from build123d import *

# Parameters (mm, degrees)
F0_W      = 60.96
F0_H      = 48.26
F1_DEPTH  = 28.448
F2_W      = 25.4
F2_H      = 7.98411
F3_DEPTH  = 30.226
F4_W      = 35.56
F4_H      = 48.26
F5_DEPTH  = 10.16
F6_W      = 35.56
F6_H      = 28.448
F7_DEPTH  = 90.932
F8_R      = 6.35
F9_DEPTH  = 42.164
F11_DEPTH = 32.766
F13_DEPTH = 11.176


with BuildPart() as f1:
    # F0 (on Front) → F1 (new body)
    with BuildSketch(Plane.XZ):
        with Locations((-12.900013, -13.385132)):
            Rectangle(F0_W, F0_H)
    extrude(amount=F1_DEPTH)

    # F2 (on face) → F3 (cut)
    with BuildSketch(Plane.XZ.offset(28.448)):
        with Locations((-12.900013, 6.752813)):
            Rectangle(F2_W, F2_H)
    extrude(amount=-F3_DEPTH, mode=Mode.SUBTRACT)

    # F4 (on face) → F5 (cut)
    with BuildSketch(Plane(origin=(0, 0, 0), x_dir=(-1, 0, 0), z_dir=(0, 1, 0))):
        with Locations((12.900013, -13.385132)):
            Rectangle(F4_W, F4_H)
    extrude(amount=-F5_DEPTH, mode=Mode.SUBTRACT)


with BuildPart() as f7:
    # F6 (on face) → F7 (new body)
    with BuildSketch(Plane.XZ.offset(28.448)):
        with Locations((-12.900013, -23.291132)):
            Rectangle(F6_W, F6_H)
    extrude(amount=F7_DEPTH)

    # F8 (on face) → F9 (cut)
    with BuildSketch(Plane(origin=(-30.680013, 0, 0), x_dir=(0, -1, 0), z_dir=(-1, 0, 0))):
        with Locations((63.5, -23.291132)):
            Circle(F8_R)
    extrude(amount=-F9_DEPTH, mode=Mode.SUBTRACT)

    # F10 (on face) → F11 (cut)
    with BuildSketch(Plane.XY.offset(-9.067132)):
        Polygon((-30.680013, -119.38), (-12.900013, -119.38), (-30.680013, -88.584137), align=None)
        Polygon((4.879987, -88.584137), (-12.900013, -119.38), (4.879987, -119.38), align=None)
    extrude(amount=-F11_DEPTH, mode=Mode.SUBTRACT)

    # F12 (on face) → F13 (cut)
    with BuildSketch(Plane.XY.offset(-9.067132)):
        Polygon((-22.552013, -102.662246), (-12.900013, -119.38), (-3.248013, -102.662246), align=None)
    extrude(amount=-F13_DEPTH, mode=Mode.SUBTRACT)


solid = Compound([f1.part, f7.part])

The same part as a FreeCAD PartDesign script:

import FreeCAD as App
import Part
import Sketcher
from FreeCAD import Vector
Q = App.Units.Quantity

doc = App.newDocument("Part")
body = doc.addObject("PartDesign::Body", "Body")

# Sketch on XZ plane
sketch1 = body.newObject("Sketcher::SketchObject", "Sketch")
sketch1.AttachmentSupport = (doc.getObject("XZ_Plane"), [""])
sketch1.MapMode = "FlatFace"
sketch1.addGeometry(Part.LineSegment(Vector(-43.380013, 10.744868, 0), Vector(-43.380013, -37.515132, 0)), False)
sketch1.addGeometry(Part.LineSegment(Vector(-43.380013, -37.515132, 0), Vector(17.579987, -37.515132, 0)), False)
sketch1.addGeometry(Part.LineSegment(Vector(17.579987, -37.515132, 0), Vector(17.579987, 10.744868, 0)), False)
sketch1.addGeometry(Part.LineSegment(Vector(17.579987, 10.744868, 0), Vector(-43.380013, 10.744868, 0)), False)
sketch1.addConstraint(Sketcher.Constraint("Coincident", 0, 2, 1, 1))
sketch1.addConstraint(Sketcher.Constraint("Coincident", 1, 2, 2, 1))
sketch1.addConstraint(Sketcher.Constraint("Coincident", 2, 2, 3, 1))
sketch1.addConstraint(Sketcher.Constraint("Coincident", 3, 2, 0, 1))
sketch1.addConstraint(Sketcher.Constraint("Vertical", 0))
sketch1.addConstraint(Sketcher.Constraint("Horizontal", 1))
sketch1.addConstraint(Sketcher.Constraint("Vertical", 2))
sketch1.addConstraint(Sketcher.Constraint("Horizontal", 3))
sketch1.addConstraint(Sketcher.Constraint("DistanceX", 1, 1, 1, 2, Q("2.4 in")))
sketch1.addConstraint(Sketcher.Constraint("DistanceY", 0, 2, 0, 1, Q("1.9 in")))
sketch1.addConstraint(Sketcher.Constraint("DistanceX", 0, 2, -1, 1, 43.380013))
sketch1.addConstraint(Sketcher.Constraint("DistanceY", 0, 2, -1, 1, 37.515132))
pad1 = body.newObject("PartDesign::Pad", "Pad")
pad1.Profile = sketch1
pad1.Length = Q("1.12 in")

# Sketch on XZ plane
sketch2 = body.newObject("Sketcher::SketchObject", "Sketch001")
sketch2.AttachmentSupport = (doc.getObject("XZ_Plane"), [""])
sketch2.MapMode = "FlatFace"
sketch2.AttachmentOffset = App.Placement(Vector(0, 0, 1.12 * 25.4), App.Rotation())
sketch2.addGeometry(Part.LineSegment(Vector(-25.600013, 10.744868, 0), Vector(-25.600013, 2.760758, 0)), False)
sketch2.addGeometry(Part.LineSegment(Vector(-25.600013, 2.760758, 0), Vector(-0.200013, 2.760758, 0)), False)
sketch2.addGeometry(Part.LineSegment(Vector(-0.200013, 2.760758, 0), Vector(-0.200013, 10.744868, 0)), False)
sketch2.addGeometry(Part.LineSegment(Vector(-0.200013, 10.744868, 0), Vector(-25.600013, 10.744868, 0)), False)
sketch2.addConstraint(Sketcher.Constraint("Coincident", 0, 2, 1, 1))
sketch2.addConstraint(Sketcher.Constraint("Coincident", 1, 2, 2, 1))
sketch2.addConstraint(Sketcher.Constraint("Coincident", 2, 2, 3, 1))
sketch2.addConstraint(Sketcher.Constraint("Coincident", 3, 2, 0, 1))
sketch2.addConstraint(Sketcher.Constraint("Vertical", 0))
sketch2.addConstraint(Sketcher.Constraint("Horizontal", 1))
sketch2.addConstraint(Sketcher.Constraint("Vertical", 2))
sketch2.addConstraint(Sketcher.Constraint("Horizontal", 3))
sketch2.addConstraint(Sketcher.Constraint("DistanceX", 1, 1, 1, 2, Q("1 in")))
sketch2.addConstraint(Sketcher.Constraint("DistanceY", 0, 2, 0, 1, 7.98411))
sketch2.addConstraint(Sketcher.Constraint("DistanceY", -1, 1, 0, 2, 2.760758))
sketch2.addConstraint(Sketcher.Constraint("DistanceX", 0, 2, -1, 1, 25.600013))
pocket1 = body.newObject("PartDesign::Pocket", "Pocket")
pocket1.Profile = sketch2
pocket1.Length = Q("1.19 in")

# Sketch on XZ plane
sketch3 = body.newObject("Sketcher::SketchObject", "Sketch002")
sketch3.AttachmentSupport = (doc.getObject("XZ_Plane"), [""])
sketch3.MapMode = "FlatFace"
sketch3.addGeometry(Part.LineSegment(Vector(4.879987, 10.744868, 0), Vector(4.879987, -37.515132, 0)), False)
sketch3.addGeometry(Part.LineSegment(Vector(4.879987, -37.515132, 0), Vector(-30.680013, -37.515132, 0)), False)
sketch3.addGeometry(Part.LineSegment(Vector(-30.680013, -37.515132, 0), Vector(-30.680013, 10.744868, 0)), False)
sketch3.addGeometry(Part.LineSegment(Vector(-30.680013, 10.744868, 0), Vector(4.879987, 10.744868, 0)), False)
sketch3.addConstraint(Sketcher.Constraint("Coincident", 0, 2, 1, 1))
sketch3.addConstraint(Sketcher.Constraint("Coincident", 1, 2, 2, 1))
sketch3.addConstraint(Sketcher.Constraint("Coincident", 2, 2, 3, 1))
sketch3.addConstraint(Sketcher.Constraint("Coincident", 3, 2, 0, 1))
sketch3.addConstraint(Sketcher.Constraint("Vertical", 0))
sketch3.addConstraint(Sketcher.Constraint("Horizontal", 1))
sketch3.addConstraint(Sketcher.Constraint("Vertical", 2))
sketch3.addConstraint(Sketcher.Constraint("Horizontal", 3))
sketch3.addConstraint(Sketcher.Constraint("DistanceX", 1, 2, 1, 1, Q("1.4 in")))
sketch3.addConstraint(Sketcher.Constraint("DistanceY", 0, 2, 0, 1, Q("1.9 in")))
sketch3.addConstraint(Sketcher.Constraint("DistanceX", -1, 1, 0, 2, 4.879987))
sketch3.addConstraint(Sketcher.Constraint("DistanceY", 0, 2, -1, 1, 37.515132))
pocket2 = body.newObject("PartDesign::Pocket", "Pocket001")
pocket2.Profile = sketch3
pocket2.Length = Q("0.4 in")
pocket2.Reversed = True
body2 = doc.addObject("PartDesign::Body", "Body001")

# Sketch on XZ plane
sketch4 = body2.newObject("Sketcher::SketchObject", "Sketch003")
sketch4.AttachmentSupport = (doc.getObject("XZ_Plane001"), [""])
sketch4.MapMode = "FlatFace"
sketch4.AttachmentOffset = App.Placement(Vector(0, 0, 1.12 * 25.4), App.Rotation())
sketch4.addGeometry(Part.LineSegment(Vector(-30.680013, -9.067132, 0), Vector(-30.680013, -37.515132, 0)), False)
sketch4.addGeometry(Part.LineSegment(Vector(-30.680013, -37.515132, 0), Vector(4.879987, -37.515132, 0)), False)
sketch4.addGeometry(Part.LineSegment(Vector(4.879987, -37.515132, 0), Vector(4.879987, -9.067132, 0)), False)
sketch4.addGeometry(Part.LineSegment(Vector(4.879987, -9.067132, 0), Vector(-30.680013, -9.067132, 0)), False)
sketch4.addConstraint(Sketcher.Constraint("Coincident", 0, 2, 1, 1))
sketch4.addConstraint(Sketcher.Constraint("Coincident", 1, 2, 2, 1))
sketch4.addConstraint(Sketcher.Constraint("Coincident", 2, 2, 3, 1))
sketch4.addConstraint(Sketcher.Constraint("Coincident", 3, 2, 0, 1))
sketch4.addConstraint(Sketcher.Constraint("Vertical", 0))
sketch4.addConstraint(Sketcher.Constraint("Horizontal", 1))
sketch4.addConstraint(Sketcher.Constraint("Vertical", 2))
sketch4.addConstraint(Sketcher.Constraint("Horizontal", 3))
sketch4.addConstraint(Sketcher.Constraint("DistanceX", 1, 1, 1, 2, Q("1.4 in")))
sketch4.addConstraint(Sketcher.Constraint("DistanceY", 0, 2, 0, 1, Q("1.12 in")))
sketch4.addConstraint(Sketcher.Constraint("DistanceX", 0, 2, -1, 1, 30.680013))
sketch4.addConstraint(Sketcher.Constraint("DistanceY", 0, 2, -1, 1, 37.515132))
pad2 = body2.newObject("PartDesign::Pad", "Pad001")
pad2.Profile = sketch4
pad2.Length = Q("3.58 in")

# Sketch on YZ plane
sketch5 = body2.newObject("Sketcher::SketchObject", "Sketch004")
sketch5.AttachmentSupport = (doc.getObject("YZ_Plane001"), [""])
sketch5.MapMode = "FlatFace"
sketch5.AttachmentOffset = App.Placement(Vector(0, 0, -30.680013), App.Rotation())
sketch5.addGeometry(Part.Circle(Vector(-63.5, -23.291132, 0), Vector(0, 0, 1), 6.35), False)
sketch5.addConstraint(Sketcher.Constraint("Diameter", 0, Q("0.5 in")))
sketch5.addConstraint(Sketcher.Constraint("DistanceX", 0, 3, -1, 1, Q("2.5 in")))
sketch5.addConstraint(Sketcher.Constraint("DistanceY", 0, 3, -1, 1, 23.291132))
pocket3 = body2.newObject("PartDesign::Pocket", "Pocket002")
pocket3.Profile = sketch5
pocket3.Length = Q("1.66 in")
pocket3.Reversed = True

# Sketch on XY plane
sketch6 = body2.newObject("Sketcher::SketchObject", "Sketch005")
sketch6.AttachmentSupport = (doc.getObject("XY_Plane001"), [""])
sketch6.MapMode = "FlatFace"
sketch6.AttachmentOffset = App.Placement(Vector(0, 0, -9.067132), App.Rotation())
sketch6.addGeometry(Part.LineSegment(Vector(-30.680013, -119.38, 0), Vector(-12.900013, -119.38, 0)), False)
sketch6.addGeometry(Part.LineSegment(Vector(-12.900013, -119.38, 0), Vector(-30.680013, -88.584137, 0)), False)
sketch6.addGeometry(Part.LineSegment(Vector(-30.680013, -88.584137, 0), Vector(-30.680013, -119.38, 0)), False)
sketch6.addGeometry(Part.LineSegment(Vector(4.879987, -88.584137, 0), Vector(-12.900013, -119.38, 0)), False)
sketch6.addGeometry(Part.LineSegment(Vector(-12.900013, -119.38, 0), Vector(4.879987, -119.38, 0)), False)
sketch6.addGeometry(Part.LineSegment(Vector(4.879987, -119.38, 0), Vector(4.879987, -88.584137, 0)), False)
sketch6.addConstraint(Sketcher.Constraint("Coincident", 0, 2, 1, 1))
sketch6.addConstraint(Sketcher.Constraint("Coincident", 1, 2, 2, 1))
sketch6.addConstraint(Sketcher.Constraint("Coincident", 2, 2, 0, 1))
sketch6.addConstraint(Sketcher.Constraint("Coincident", 3, 2, 4, 1))
sketch6.addConstraint(Sketcher.Constraint("Coincident", 4, 2, 5, 1))
sketch6.addConstraint(Sketcher.Constraint("Coincident", 5, 2, 3, 1))
sketch6.addConstraint(Sketcher.Constraint("Horizontal", 0))
sketch6.addConstraint(Sketcher.Constraint("Vertical", 2))
sketch6.addConstraint(Sketcher.Constraint("Horizontal", 4))
sketch6.addConstraint(Sketcher.Constraint("Vertical", 5))
sketch6.addConstraint(Sketcher.Constraint("Coincident", 3, 2, 0, 2))
sketch6.addConstraint(Sketcher.Constraint("Horizontal", 1, 2, 5, 2))
sketch6.addConstraint(Sketcher.Constraint("Equal", 0, 4))
sketch6.addConstraint(Sketcher.Constraint("DistanceX", 0, 1, 0, 2, Q("0.7 in")))
sketch6.addConstraint(Sketcher.Constraint("Angle", 1, Q("120 deg")))
sketch6.addConstraint(Sketcher.Constraint("DistanceY", 0, 2, -1, 1, Q("4.7 in")))
sketch6.addConstraint(Sketcher.Constraint("DistanceX", 0, 2, -1, 1, 12.900013))
pocket4 = body2.newObject("PartDesign::Pocket", "Pocket003")
pocket4.Profile = sketch6
pocket4.Length = Q("1.29 in")

# Sketch on XY plane
sketch7 = body2.newObject("Sketcher::SketchObject", "Sketch006")
sketch7.AttachmentSupport = (doc.getObject("XY_Plane001"), [""])
sketch7.MapMode = "FlatFace"
sketch7.AttachmentOffset = App.Placement(Vector(0, 0, -9.067132), App.Rotation())
sketch7.addGeometry(Part.LineSegment(Vector(-22.552013, -102.662246, 0), Vector(-12.900013, -119.38, 0)), False)
sketch7.addGeometry(Part.LineSegment(Vector(-12.900013, -119.38, 0), Vector(-3.248013, -102.662246, 0)), False)
sketch7.addGeometry(Part.LineSegment(Vector(-3.248013, -102.662246, 0), Vector(-22.552013, -102.662246, 0)), False)
sketch7.addConstraint(Sketcher.Constraint("Coincident", 0, 2, 1, 1))
sketch7.addConstraint(Sketcher.Constraint("Coincident", 1, 2, 2, 1))
sketch7.addConstraint(Sketcher.Constraint("Coincident", 2, 2, 0, 1))
sketch7.addConstraint(Sketcher.Constraint("Horizontal", 2))
sketch7.addConstraint(Sketcher.Constraint("Equal", 0, 1))
sketch7.addConstraint(Sketcher.Constraint("Angle", 0, Q("-59.999999 deg")))
sketch7.addConstraint(Sketcher.Constraint("DistanceX", 2, 2, 2, 1, Q("0.76 in")))
sketch7.addConstraint(Sketcher.Constraint("DistanceY", 0, 2, -1, 1, Q("4.7 in")))
sketch7.addConstraint(Sketcher.Constraint("DistanceX", 0, 2, -1, 1, 12.900013))
pocket5 = body2.newObject("PartDesign::Pocket", "Pocket004")
pocket5.Profile = sketch7
pocket5.Length = Q("0.44 in")

doc.recompute()
